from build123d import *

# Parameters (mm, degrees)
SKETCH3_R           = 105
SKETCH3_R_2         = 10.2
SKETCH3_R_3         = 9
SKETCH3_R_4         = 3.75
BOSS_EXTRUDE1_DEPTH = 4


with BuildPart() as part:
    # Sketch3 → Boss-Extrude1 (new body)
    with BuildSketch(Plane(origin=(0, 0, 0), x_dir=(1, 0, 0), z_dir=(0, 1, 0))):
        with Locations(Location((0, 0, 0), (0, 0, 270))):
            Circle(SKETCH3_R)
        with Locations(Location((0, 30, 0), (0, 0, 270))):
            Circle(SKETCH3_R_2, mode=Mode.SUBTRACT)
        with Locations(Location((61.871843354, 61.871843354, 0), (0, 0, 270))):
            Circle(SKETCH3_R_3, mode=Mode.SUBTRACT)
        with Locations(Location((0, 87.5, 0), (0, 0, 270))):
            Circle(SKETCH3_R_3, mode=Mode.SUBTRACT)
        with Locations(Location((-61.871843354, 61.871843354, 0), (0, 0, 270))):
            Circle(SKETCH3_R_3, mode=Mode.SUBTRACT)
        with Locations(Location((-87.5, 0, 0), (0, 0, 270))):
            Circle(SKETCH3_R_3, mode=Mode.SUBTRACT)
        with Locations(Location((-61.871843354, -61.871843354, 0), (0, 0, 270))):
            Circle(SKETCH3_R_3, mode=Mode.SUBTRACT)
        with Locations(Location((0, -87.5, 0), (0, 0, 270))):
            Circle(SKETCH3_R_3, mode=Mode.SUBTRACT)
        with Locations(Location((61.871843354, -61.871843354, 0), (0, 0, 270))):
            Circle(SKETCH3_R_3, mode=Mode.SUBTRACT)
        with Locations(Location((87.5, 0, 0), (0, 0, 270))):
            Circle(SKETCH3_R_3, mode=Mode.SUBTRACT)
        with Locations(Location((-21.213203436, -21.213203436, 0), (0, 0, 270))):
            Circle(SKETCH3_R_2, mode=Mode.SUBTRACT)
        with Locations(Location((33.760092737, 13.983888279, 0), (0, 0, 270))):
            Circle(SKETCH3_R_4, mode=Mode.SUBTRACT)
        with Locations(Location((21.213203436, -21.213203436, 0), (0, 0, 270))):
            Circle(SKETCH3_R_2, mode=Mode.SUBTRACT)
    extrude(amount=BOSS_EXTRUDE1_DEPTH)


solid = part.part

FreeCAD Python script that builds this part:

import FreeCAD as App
import Part
import Sketcher

V = App.Vector

doc = App.newDocument("Part")
params = doc.addObject("Spreadsheet::Sheet", "Params")
for row, (alias, value) in enumerate([
    ("sketch1_diameter", "210 mm"),
    ("sketch1_diameter2", "18 mm"),
    ("sketch1_diameter3", "20.4 mm"),
    ("sketch1_diameter4", "7.5 mm"),
    ("pad1_length", "4 mm"),
], start=1):
    params.set(f"A{row}", alias)
    params.set(f"B{row}", "=" + value)
    params.setAlias(f"B{row}", alias)

body = doc.addObject("PartDesign::Body", "Body")

sketch1 = body.newObject("Sketcher::SketchObject", "Sketch")
sketch1.AttachmentSupport = (doc.getObject("XZ_Plane"), [""])
sketch1.MapMode = "FlatFace"
sketch1.addGeometry(Part.Circle(V(0, 0, 0), V(0, 0, 1), 105), False)
sketch1.addGeometry(Part.Circle(V(-61.871843, -61.871843, 0), V(0, 0, 1), 9), False)
sketch1.addGeometry(Part.Circle(V(0, -87.5, 0), V(0, 0, 1), 9), False)
sketch1.addGeometry(Part.Circle(V(0, -30, 0), V(0, 0, 1), 10.2), False)
sketch1.addGeometry(Part.Circle(V(-87.5, 0, 0), V(0, 0, 1), 9), False)
sketch1.addGeometry(Part.Circle(V(-61.871843, 61.871843, 0), V(0, 0, 1), 9), False)
sketch1.addGeometry(Part.Circle(V(-21.213203, 21.213203, 0), V(0, 0, 1), 10.2), False)
sketch1.addGeometry(Part.Circle(V(33.760093, -13.983888, 0), V(0, 0, 1), 3.75), False)
sketch1.addGeometry(Part.Circle(V(61.871843, -61.871843, 0), V(0, 0, 1), 9), False)
sketch1.addGeometry(Part.Circle(V(87.5, 0, 0), V(0, 0, 1), 9), False)
sketch1.addGeometry(Part.Circle(V(21.213203, 21.213203, 0), V(0, 0, 1), 10.2), False)
sketch1.addGeometry(Part.Circle(V(0, 87.5, 0), V(0, 0, 1), 9), False)
sketch1.addGeometry(Part.Circle(V(61.871843, 61.871843, 0), V(0, 0, 1), 9), False)
sketch1.addConstraint(Sketcher.Constraint("Coincident", 0, 3, -1, 1))
sketch1.addConstraint(Sketcher.Constraint("Equal", 1, 2))
sketch1.addConstraint(Sketcher.Constraint("Equal", 2, 4))
sketch1.addConstraint(Sketcher.Constraint("Equal", 4, 5))
sketch1.addConstraint(Sketcher.Constraint("Equal", 3, 6))
sketch1.addConstraint(Sketcher.Constraint("Equal", 5, 8))
sketch1.addConstraint(Sketcher.Constraint("Equal", 8, 9))
sketch1.addConstraint(Sketcher.Constraint("Equal", 6, 10))
sketch1.addConstraint(Sketcher.Constraint("Equal", 9, 11))
sketch1.addConstraint(Sketcher.Constraint("Equal", 11, 12))
sketch1.addConstraint(Sketcher.Constraint("Symmetric", 5, 3, 8, 3, -1, 1))
sketch1.addConstraint(Sketcher.Constraint("Symmetric", 4, 3, 9, 3, -1, 1))
sketch1.addConstraint(Sketcher.Constraint("Symmetric", 2, 3, 11, 3, -1, 1))
sketch1.addConstraint(Sketcher.Constraint("Symmetric", 1, 3, 12, 3, -1, 1))
sketch1.addConstraint(Sketcher.Constraint("Symmetric", 1, 3, 8, 3, -2))
sketch1.addConstraint(Sketcher.Constraint("Symmetric", 6, 3, 10, 3, -2))
sketch1.addConstraint(Sketcher.Constraint("PointOnObject", 2, 3, -2))
sketch1.addConstraint(Sketcher.Constraint("PointOnObject", 3, 3, -2))
sketch1.addConstraint(Sketcher.Constraint("PointOnObject", 4, 3, -1))
sketch1.addConstraint(Sketcher.Constraint("Diameter", 0, 210.0))
sketch1.addConstraint(Sketcher.Constraint("Diameter", 1, 18.0))
sketch1.addConstraint(Sketcher.Constraint("Diameter", 3, 20.4))
sketch1.addConstraint(Sketcher.Constraint("Diameter", 7, 7.5))
sketch1.addConstraint(Sketcher.Constraint("DistanceY", 3, 3, -1, 1, 30.0))
sketch1.addConstraint(Sketcher.Constraint("DistanceY", 2, 3, -1, 1, 87.5))
sketch1.addConstraint(Sketcher.Constraint("DistanceX", 4, 3, -1, 1, 87.5))
sketch1.addConstraint(Sketcher.Constraint("DistanceY", 7, 3, -1, 1, 13.983888))
sketch1.addConstraint(Sketcher.Constraint("DistanceX", 5, 3, 6, 3, 40.65864))
sketch1.addConstraint(Sketcher.Constraint("DistanceY", 6, 3, 5, 3, 40.65864))
sketch1.addConstraint(Sketcher.Constraint("DistanceY", 7, 3, 6, 3, 35.197092))
sketch1.addConstraint(Sketcher.Constraint("DistanceX", 7, 3, 8, 3, 28.111751))
sketch1.addConstraint(Sketcher.Constraint("DistanceX", 1, 3, -1, 1, 61.871843))
sketch1.setExpression("Constraints[19]", "Params.sketch1_diameter")
sketch1.setExpression("Constraints[20]", "Params.sketch1_diameter2")
sketch1.setExpression("Constraints[21]", "Params.sketch1_diameter3")
sketch1.setExpression("Constraints[22]", "Params.sketch1_diameter4")
pad1 = body.newObject("PartDesign::Pad", "Pad")
pad1.Profile = sketch1
pad1.setExpression("Length", "Params.pad1_length")
pad1.Reversed = True

doc.recompute()
